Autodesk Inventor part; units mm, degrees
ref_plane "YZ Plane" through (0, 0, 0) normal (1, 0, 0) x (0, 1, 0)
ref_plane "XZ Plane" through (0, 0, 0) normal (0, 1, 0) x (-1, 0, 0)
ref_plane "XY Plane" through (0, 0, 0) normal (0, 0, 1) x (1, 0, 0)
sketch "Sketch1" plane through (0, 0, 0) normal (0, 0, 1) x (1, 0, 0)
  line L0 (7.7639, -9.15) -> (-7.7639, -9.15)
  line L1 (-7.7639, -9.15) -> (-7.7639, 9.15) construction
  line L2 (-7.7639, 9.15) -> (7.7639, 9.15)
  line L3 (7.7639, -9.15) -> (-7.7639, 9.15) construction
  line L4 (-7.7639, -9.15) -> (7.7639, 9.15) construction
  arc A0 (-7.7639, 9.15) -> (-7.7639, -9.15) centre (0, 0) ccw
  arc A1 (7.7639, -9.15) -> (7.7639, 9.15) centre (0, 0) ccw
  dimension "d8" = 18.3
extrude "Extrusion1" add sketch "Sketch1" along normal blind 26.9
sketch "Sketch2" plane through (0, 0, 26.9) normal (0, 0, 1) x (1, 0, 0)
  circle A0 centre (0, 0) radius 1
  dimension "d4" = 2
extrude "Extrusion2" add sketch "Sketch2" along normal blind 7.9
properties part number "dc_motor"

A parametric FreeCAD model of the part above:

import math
import FreeCAD as App
import Part
import Sketcher

V = App.Vector

doc = App.newDocument("Part")
body = doc.addObject("PartDesign::Body", "Body")

# Sketch on XY plane
sketch1 = body.newObject("Sketcher::SketchObject", "Sketch")
sketch1.AttachmentSupport = (doc.getObject("XY_Plane"), [""])
sketch1.MapMode = "FlatFace"
sketch1.addGeometry(Part.LineSegment(V(-8, -9, 0), V(8, -9, 0)), False)
sketch1.addGeometry(Part.ArcOfCircle(Part.Circle(V(0, 0, 0), V(0, 0, 1), 12), math.radians(-50), math.radians(50)), False)
sketch1.addGeometry(Part.LineSegment(V(8, 9, 0), V(-8, 9, 0)), False)
sketch1.addGeometry(Part.ArcOfCircle(Part.Circle(V(0, 0, 0), V(0, 0, 1), 12), math.radians(130), math.radians(230)), False)
sketch1.addConstraint(Sketcher.Constraint("Coincident", 0, 2, 1, 1))
sketch1.addConstraint(Sketcher.Constraint("Coincident", 1, 2, 2, 1))
sketch1.addConstraint(Sketcher.Constraint("Coincident", 2, 2, 3, 1))
sketch1.addConstraint(Sketcher.Constraint("Coincident", 3, 2, 0, 1))
sketch1.addConstraint(Sketcher.Constraint("Horizontal", 0))
sketch1.addConstraint(Sketcher.Constraint("Horizontal", 2))
sketch1.addConstraint(Sketcher.Constraint("Coincident", 1, 3, -1, 1))
sketch1.addConstraint(Sketcher.Constraint("Coincident", 3, 3, -1, 1))
sketch1.addConstraint(Sketcher.Constraint("Equal", 1, 3))
sketch1.addConstraint(Sketcher.Constraint("Vertical", 0, 2, 1, 2))
sketch1.addConstraint(Sketcher.Constraint("Radius", 1, 12.0))
sketch1.addConstraint(Sketcher.Constraint("DistanceY", 0, 2, 1, 2, 18.3))
pad1 = body.newObject("PartDesign::Pad", "Pad")
pad1.Profile = sketch1
pad1.Length = 26.9

# Sketch on XY plane
sketch2 = body.newObject("Sketcher::SketchObject", "Sketch001")
sketch2.AttachmentSupport = (doc.getObject("XY_Plane"), [""])
sketch2.MapMode = "FlatFace"
sketch2.AttachmentOffset = App.Placement(V(0, 0, 26.9), App.Rotation())
sketch2.addGeometry(Part.Circle(V(0, 0, 0), V(0, 0, 1), 1), False)
sketch2.addConstraint(Sketcher.Constraint("Coincident", 0, 3, -1, 1))
sketch2.addConstraint(Sketcher.Constraint("Diameter", 0, 2.0))
pad2 = body.newObject("PartDesign::Pad", "Pad001")
pad2.Profile = sketch2
pad2.Length = 7.9

doc.recompute()
